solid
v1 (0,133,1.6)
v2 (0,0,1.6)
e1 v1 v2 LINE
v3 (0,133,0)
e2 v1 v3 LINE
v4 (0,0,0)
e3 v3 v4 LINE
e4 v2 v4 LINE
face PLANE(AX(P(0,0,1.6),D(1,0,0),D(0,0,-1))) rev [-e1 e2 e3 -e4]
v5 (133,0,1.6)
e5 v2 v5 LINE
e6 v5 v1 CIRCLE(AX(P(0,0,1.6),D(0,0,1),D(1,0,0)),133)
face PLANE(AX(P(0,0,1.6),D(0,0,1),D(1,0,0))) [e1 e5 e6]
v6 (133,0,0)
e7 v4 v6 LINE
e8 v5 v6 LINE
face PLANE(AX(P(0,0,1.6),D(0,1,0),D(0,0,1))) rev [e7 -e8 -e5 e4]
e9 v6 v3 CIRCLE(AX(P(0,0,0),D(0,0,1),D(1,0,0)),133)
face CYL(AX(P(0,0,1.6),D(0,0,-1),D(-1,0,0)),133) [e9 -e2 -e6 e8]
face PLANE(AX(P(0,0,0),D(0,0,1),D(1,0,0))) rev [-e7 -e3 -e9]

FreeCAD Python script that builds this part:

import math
import FreeCAD as App
import Part
import Sketcher

V = App.Vector
Q = App.Units.Quantity

doc = App.newDocument("Part")
params = doc.addObject("Spreadsheet::Sheet", "Params")
for row, (alias, value) in enumerate([
    ("sketch1_radius", "133 mm"),
    ("pad1_length", "1.6 mm"),
], start=1):
    params.set(f"A{row}", alias)
    params.set(f"B{row}", "=" + value)
    params.setAlias(f"B{row}", alias)

body = doc.addObject("PartDesign::Body", "Body")

# Sketch on XY plane
sketch1 = body.newObject("Sketcher::SketchObject", "Sketch")
sketch1.AttachmentSupport = (doc.getObject("XY_Plane"), [""])
sketch1.MapMode = "FlatFace"
sketch1.addGeometry([
    Part.LineSegment(V(0, 133, 0), V(0, 0, 0)),
    Part.LineSegment(V(0, 0, 0), V(133, 0, 0)),
    Part.ArcOfCircle(Part.Circle(V(0, 0, 0), V(0, 0, 1), 133), math.radians(0), math.radians(90)),
], False)
sketch1.addConstraint([
    Sketcher.Constraint("Coincident", 0, 2, 1, 1),
    Sketcher.Constraint("Coincident", 1, 2, 2, 1),
    Sketcher.Constraint("Coincident", 2, 2, 0, 1),
    Sketcher.Constraint("Vertical", 0),
    Sketcher.Constraint("Horizontal", 1),
    Sketcher.Constraint("Coincident", 2, 3, -1, 1),
    Sketcher.Constraint("Coincident", 0, 2, -1, 1),
    Sketcher.Constraint("Radius", 2, Q("133 mm")),
])
sketch1.setExpression("Constraints[7]", "Params.sketch1_radius")
pad1 = body.newObject("PartDesign::Pad", "Pad")
pad1.Profile = sketch1
pad1.setExpression("Length", "Params.pad1_length")

doc.recompute()
